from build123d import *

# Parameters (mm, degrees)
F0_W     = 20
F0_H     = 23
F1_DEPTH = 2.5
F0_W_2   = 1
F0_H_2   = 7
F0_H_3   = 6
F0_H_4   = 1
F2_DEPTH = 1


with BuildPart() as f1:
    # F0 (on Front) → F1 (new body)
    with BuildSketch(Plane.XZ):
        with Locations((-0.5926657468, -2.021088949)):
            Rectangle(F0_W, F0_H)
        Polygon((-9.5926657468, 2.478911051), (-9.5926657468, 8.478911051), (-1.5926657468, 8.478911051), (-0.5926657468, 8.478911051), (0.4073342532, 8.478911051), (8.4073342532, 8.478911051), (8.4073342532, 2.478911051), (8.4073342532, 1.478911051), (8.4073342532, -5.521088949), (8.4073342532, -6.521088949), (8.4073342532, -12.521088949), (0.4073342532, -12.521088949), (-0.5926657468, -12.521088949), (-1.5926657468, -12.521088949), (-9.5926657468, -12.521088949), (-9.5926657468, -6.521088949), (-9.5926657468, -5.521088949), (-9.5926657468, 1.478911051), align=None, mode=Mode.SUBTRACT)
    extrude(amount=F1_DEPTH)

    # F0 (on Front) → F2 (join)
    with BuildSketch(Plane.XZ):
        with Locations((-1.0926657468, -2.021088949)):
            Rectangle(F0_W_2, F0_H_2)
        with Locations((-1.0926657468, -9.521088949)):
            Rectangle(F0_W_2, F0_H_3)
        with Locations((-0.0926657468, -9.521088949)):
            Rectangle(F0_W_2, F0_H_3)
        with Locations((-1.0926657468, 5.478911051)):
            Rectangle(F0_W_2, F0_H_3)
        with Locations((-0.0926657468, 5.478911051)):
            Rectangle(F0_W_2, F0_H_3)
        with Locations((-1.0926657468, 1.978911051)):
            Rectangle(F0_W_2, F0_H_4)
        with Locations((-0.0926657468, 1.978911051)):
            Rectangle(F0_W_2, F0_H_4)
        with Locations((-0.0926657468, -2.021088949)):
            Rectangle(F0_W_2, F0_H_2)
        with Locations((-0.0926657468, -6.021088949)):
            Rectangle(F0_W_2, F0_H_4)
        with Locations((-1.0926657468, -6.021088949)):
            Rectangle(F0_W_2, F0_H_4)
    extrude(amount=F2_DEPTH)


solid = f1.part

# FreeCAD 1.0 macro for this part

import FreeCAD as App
import Part
import Sketcher
from FreeCAD import Vector
Q = App.Units.Quantity


def add_polygon(sketch, points):
    """Adds a closed chain of lines whose ends are joined by coincident constraints."""
    first, n = sketch.GeometryCount, len(points)
    for a, b in zip(points, points[1:] + points[:1]):
        sketch.addGeometry(Part.LineSegment(App.Vector(*a, 0), App.Vector(*b, 0)), False)
    for i in range(n):
        sketch.addConstraint(Sketcher.Constraint("Coincident", first + i, 2, first + (i + 1) % n, 1))

doc = App.newDocument("Part")
body = doc.addObject("PartDesign::Body", "Body")

sketch1 = body.newObject("Sketcher::SketchObject", "Sketch")
sketch1.AttachmentSupport = (doc.getObject("XZ_Plane"), [""])
sketch1.MapMode = "FlatFace"
add_polygon(sketch1, [(-11, 9), (-11, -14), (9, -14), (9, 9)])
add_polygon(sketch1, [(-10, -13), (-10, 8), (8, 8), (8, -13)])
sketch1.addConstraint([
    Sketcher.Constraint("Vertical", 0),
    Sketcher.Constraint("Horizontal", 1),
    Sketcher.Constraint("Vertical", 2),
    Sketcher.Constraint("Horizontal", 3),
    Sketcher.Constraint("Vertical", 4),
    Sketcher.Constraint("Horizontal", 5),
    Sketcher.Constraint("Vertical", 6),
    Sketcher.Constraint("Horizontal", 7),
    Sketcher.Constraint("DistanceX", 1, 1, 1, 2, Q("20 mm")),
    Sketcher.Constraint("DistanceX", 5, 1, 5, 2, Q("18 mm")),
    Sketcher.Constraint("DistanceY", 0, 2, 0, 1, Q("23 mm")),
    Sketcher.Constraint("DistanceY", 4, 1, 4, 2, Q("21 mm")),
    Sketcher.Constraint("DistanceX", 3, 2, 4, 2, Q("1 mm")),
    Sketcher.Constraint("DistanceY", 4, 2, 3, 2, Q("1 mm")),
    Sketcher.Constraint("DistanceY", 0, 2, -1, 1, Q("13.521089 mm")),
    Sketcher.Constraint("DistanceX", 0, 2, -1, 1, Q("10.592666 mm")),
])
pad1 = body.newObject("PartDesign::Pad", "Pad")
pad1.Profile = sketch1
pad1.Length = 2.5

sketch2 = body.newObject("Sketcher::SketchObject", "Sketch001")
sketch2.AttachmentSupport = (doc.getObject("XZ_Plane"), [""])
sketch2.MapMode = "FlatFace"
add_polygon(sketch2, [(-1.6, -12.5), (0.4, -12.5), (0.4, 8.5), (-1.6, 8.5)])
sketch2.addConstraint([
    Sketcher.Constraint("Horizontal", 0),
    Sketcher.Constraint("Vertical", 1),
    Sketcher.Constraint("Horizontal", 2),
    Sketcher.Constraint("Vertical", 3),
    Sketcher.Constraint("DistanceX", 0, 1, 0, 2, Q("2 mm")),
    Sketcher.Constraint("DistanceY", 1, 1, 1, 2, Q("21 mm")),
    Sketcher.Constraint("DistanceY", 0, 2, -1, 1, Q("12.521089 mm")),
    Sketcher.Constraint("DistanceX", -1, 1, 0, 2, Q("0.407334 mm")),
])
pad2 = body.newObject("PartDesign::Pad", "Pad001")
pad2.Profile = sketch2
pad2.Length = 1

doc.recompute()
